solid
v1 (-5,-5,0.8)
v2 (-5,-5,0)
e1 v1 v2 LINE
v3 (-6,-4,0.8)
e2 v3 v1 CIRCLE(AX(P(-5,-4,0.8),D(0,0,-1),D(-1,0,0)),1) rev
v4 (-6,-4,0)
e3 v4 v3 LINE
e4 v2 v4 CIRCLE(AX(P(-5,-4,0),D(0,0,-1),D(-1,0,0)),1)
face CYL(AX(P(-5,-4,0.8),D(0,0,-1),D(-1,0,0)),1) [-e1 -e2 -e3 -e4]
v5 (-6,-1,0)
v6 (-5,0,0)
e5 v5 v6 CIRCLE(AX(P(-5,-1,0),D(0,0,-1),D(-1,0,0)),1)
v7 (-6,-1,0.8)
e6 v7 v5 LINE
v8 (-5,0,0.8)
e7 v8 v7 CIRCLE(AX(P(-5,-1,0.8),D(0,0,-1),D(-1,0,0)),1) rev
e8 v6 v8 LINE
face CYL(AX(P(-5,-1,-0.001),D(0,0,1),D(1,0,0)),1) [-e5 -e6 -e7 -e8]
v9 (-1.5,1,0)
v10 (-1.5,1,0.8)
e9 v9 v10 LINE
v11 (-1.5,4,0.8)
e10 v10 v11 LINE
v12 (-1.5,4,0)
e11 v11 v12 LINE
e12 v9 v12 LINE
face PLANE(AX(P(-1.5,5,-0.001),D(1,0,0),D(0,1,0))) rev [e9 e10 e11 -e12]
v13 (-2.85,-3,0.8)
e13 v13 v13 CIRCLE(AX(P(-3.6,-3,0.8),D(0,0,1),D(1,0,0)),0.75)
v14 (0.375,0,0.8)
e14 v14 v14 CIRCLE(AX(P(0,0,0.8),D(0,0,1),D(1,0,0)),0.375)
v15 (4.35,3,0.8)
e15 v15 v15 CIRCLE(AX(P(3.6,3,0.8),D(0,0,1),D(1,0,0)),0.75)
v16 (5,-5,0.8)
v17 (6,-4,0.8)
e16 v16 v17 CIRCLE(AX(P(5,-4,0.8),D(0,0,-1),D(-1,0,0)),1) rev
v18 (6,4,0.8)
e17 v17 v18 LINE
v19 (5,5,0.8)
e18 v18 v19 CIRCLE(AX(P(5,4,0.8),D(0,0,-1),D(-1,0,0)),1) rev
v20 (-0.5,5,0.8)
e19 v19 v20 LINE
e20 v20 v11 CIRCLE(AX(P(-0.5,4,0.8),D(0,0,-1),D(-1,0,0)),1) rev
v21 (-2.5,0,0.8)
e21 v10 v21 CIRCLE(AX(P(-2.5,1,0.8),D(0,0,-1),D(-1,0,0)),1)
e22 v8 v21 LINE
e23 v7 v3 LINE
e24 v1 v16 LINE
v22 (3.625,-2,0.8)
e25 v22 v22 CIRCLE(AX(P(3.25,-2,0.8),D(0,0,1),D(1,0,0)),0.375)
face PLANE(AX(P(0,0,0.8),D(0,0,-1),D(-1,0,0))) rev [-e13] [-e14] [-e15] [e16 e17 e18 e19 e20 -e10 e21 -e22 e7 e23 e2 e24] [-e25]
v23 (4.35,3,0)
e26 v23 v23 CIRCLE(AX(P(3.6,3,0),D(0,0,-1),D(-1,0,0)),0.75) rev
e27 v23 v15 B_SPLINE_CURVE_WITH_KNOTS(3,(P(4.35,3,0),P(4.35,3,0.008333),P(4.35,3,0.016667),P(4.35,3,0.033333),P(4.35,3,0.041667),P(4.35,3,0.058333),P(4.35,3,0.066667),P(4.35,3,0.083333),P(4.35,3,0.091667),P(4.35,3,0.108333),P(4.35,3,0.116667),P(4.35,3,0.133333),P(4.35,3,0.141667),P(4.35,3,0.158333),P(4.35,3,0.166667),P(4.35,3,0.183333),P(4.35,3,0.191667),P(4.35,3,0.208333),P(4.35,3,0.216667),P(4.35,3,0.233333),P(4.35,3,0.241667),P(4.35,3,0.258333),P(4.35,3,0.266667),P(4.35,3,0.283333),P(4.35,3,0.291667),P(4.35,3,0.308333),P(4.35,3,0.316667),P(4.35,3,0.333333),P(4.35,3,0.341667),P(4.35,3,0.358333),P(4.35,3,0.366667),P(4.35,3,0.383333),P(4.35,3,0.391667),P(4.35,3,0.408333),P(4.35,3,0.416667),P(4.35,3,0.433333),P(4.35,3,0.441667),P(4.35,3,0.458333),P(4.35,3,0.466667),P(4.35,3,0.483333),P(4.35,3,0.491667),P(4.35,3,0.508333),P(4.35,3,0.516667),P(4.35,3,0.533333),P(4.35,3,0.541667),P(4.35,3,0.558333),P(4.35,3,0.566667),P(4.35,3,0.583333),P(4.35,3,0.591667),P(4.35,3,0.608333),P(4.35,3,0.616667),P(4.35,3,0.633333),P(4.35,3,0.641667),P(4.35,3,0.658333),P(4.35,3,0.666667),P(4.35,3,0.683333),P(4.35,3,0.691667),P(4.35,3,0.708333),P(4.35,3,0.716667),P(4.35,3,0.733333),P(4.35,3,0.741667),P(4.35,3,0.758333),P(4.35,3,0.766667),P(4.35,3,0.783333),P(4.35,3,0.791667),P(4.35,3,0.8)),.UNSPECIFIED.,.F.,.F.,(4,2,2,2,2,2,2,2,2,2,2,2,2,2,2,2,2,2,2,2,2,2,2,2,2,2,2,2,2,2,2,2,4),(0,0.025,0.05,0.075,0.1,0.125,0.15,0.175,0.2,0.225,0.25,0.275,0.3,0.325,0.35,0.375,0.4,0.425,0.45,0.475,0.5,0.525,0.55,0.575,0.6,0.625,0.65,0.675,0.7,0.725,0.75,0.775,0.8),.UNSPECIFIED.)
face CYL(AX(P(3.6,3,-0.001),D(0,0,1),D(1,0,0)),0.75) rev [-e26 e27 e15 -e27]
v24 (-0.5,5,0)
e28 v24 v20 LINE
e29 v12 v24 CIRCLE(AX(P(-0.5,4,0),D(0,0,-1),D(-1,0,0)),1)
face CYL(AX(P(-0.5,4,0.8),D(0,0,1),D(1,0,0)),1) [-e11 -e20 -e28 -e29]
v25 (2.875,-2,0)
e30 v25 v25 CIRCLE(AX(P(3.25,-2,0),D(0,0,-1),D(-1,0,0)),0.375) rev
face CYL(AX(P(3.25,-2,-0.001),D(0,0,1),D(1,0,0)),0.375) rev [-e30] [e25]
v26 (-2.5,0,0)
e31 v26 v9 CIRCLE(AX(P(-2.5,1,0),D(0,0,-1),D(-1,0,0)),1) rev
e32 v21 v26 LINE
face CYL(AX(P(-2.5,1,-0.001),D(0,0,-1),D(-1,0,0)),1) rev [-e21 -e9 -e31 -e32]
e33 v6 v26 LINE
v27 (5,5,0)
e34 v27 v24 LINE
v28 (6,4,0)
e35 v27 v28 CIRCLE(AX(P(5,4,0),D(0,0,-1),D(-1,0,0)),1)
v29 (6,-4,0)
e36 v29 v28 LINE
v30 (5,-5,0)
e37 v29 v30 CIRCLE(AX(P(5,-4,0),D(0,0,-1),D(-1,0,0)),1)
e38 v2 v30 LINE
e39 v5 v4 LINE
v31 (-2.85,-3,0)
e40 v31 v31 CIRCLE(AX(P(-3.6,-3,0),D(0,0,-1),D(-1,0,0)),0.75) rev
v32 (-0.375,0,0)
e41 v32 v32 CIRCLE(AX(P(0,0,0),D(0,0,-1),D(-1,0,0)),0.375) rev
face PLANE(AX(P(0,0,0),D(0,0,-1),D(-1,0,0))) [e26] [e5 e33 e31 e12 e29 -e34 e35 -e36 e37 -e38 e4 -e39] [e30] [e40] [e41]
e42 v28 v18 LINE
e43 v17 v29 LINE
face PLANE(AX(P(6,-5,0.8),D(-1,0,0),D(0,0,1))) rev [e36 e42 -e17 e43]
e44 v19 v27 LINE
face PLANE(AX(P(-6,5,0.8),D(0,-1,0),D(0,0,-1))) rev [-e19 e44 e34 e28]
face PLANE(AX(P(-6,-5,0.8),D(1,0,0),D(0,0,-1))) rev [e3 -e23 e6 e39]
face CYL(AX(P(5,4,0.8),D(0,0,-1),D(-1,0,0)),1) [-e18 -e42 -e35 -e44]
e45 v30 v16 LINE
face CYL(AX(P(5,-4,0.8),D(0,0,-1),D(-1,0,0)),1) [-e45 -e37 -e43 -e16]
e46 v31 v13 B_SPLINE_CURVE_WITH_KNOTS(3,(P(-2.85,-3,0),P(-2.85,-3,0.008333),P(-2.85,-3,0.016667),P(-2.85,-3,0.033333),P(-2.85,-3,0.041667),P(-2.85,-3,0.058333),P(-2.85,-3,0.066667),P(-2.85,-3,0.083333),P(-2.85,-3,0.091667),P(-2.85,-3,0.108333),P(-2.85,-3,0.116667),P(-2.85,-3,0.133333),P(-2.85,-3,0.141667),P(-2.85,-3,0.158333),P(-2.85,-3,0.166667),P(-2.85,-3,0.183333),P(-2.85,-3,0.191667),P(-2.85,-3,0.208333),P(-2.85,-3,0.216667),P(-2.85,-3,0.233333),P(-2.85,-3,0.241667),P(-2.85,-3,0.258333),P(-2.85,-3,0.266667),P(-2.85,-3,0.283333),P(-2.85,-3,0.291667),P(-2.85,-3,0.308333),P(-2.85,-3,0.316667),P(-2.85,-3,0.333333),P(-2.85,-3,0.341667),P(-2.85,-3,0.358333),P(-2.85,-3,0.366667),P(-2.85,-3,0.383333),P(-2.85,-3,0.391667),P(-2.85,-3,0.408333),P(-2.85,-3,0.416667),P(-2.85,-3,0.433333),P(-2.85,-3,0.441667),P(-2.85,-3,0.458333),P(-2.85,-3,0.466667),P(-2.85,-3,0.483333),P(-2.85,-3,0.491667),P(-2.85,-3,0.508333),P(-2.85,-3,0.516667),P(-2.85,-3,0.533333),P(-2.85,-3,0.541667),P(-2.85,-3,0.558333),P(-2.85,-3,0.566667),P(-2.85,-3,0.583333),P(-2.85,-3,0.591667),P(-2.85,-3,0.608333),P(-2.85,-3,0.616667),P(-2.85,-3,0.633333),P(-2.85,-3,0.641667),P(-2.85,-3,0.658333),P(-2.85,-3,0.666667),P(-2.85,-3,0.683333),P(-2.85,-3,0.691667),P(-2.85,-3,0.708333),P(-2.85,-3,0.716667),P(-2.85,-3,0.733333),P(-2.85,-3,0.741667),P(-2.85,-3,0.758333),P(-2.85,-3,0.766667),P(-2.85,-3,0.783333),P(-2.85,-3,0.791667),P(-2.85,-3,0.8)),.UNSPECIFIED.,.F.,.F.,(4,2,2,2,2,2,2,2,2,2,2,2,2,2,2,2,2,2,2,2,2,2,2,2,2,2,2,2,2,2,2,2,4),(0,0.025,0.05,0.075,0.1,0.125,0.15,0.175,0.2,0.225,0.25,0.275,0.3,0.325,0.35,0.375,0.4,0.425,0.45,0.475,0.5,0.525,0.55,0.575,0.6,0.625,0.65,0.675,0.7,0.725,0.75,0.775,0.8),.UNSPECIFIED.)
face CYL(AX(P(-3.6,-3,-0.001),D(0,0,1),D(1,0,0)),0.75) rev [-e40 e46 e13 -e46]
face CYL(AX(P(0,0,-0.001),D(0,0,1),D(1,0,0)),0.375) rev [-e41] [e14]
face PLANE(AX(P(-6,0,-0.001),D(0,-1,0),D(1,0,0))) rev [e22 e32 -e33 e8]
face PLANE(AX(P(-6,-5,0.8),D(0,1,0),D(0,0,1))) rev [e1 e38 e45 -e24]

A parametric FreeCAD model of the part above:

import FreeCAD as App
import Part
import Sketcher

V = App.Vector


def edges_at(feature, points):
    """Names of the edges that pass closest to the given points."""
    edges = feature.Shape.Edges
    near = lambda p: min(range(len(edges)), key=lambda i: edges[i].distToShape(Part.Vertex(*p))[0])
    return sorted({f"Edge{near(p) + 1}" for p in points})


def add_polygon(sketch, points):
    """Adds a closed chain of lines whose ends are joined by coincident constraints."""
    first, n = sketch.GeometryCount, len(points)
    for a, b in zip(points, points[1:] + points[:1]):
        sketch.addGeometry(Part.LineSegment(App.Vector(*a, 0), App.Vector(*b, 0)), False)
    for i in range(n):
        sketch.addConstraint(Sketcher.Constraint("Coincident", first + i, 2, first + (i + 1) % n, 1))

doc = App.newDocument("Part")
params = doc.addObject("Spreadsheet::Sheet", "Params")
for row, (alias, value) in enumerate([
    ("sketch1_width", "12 mm"),
    ("sketch1_height", "10 mm"),
    ("pad1_length", "0.8 mm"),
    ("sketch2_diameter", "0.75 mm"),
    ("sketch3_diameter", "1.5 mm"),
    ("sketch4_diameter", "1.5 mm"),
    ("sketch5_diameter", "0.75 mm"),
    ("sketch6_height", "5 mm"),
    ("sketch6_width", "4.5 mm"),
    ("fillet_radius", "1 mm"),
], start=1):
    params.set(f"A{row}", alias)
    params.set(f"B{row}", "=" + value)
    params.setAlias(f"B{row}", alias)

body = doc.addObject("PartDesign::Body", "Body")

# Sketch on XY plane
sketch1 = body.newObject("Sketcher::SketchObject", "Sketch")
sketch1.AttachmentSupport = (doc.getObject("XY_Plane"), [""])
sketch1.MapMode = "FlatFace"
add_polygon(sketch1, [(-6, 5), (-6, -5), (6, -5), (6, 5)])  # lines 0-3
sketch1.addConstraint([
    Sketcher.Constraint("Vertical", 0),
    Sketcher.Constraint("Horizontal", 1),
    Sketcher.Constraint("Vertical", 2),
    Sketcher.Constraint("Horizontal", 3),
    Sketcher.Constraint("Symmetric", 0, 2, 2, 2, -1, 1),
    Sketcher.Constraint("DistanceX", 1, 1, 1, 2, 12.0),
    Sketcher.Constraint("DistanceY", 0, 2, 0, 1, 10.0),
])
sketch1.setExpression("Constraints[9]", "Params.sketch1_width")
sketch1.setExpression("Constraints[10]", "Params.sketch1_height")
pad1 = body.newObject("PartDesign::Pad", "Pad")
pad1.Profile = sketch1
pad1.setExpression("Length", "Params.pad1_length")

# Sketch on XY plane
sketch2 = body.newObject("Sketcher::SketchObject", "Sketch001")
sketch2.AttachmentSupport = (doc.getObject("XY_Plane"), [""])
sketch2.MapMode = "FlatFace"
sketch2.AttachmentOffset = App.Placement(V(0, 0, 0.8), App.Rotation())
sketch2.addGeometry(Part.Circle(V(0, 0, 0), V(0, 0, 1), 0.38), False)
sketch2.addConstraint([
    Sketcher.Constraint("Coincident", 0, 3, -1, 1),
    Sketcher.Constraint("Diameter", 0, 0.75),
])
sketch2.setExpression("Constraints[1]", "Params.sketch2_diameter")
pocket1 = body.newObject("PartDesign::Pocket", "Pocket")
pocket1.Profile = sketch2
pocket1.Type = "UpToFirst"

# Sketch on XY plane
sketch3 = body.newObject("Sketcher::SketchObject", "Sketch002")
sketch3.AttachmentSupport = (doc.getObject("XY_Plane"), [""])
sketch3.MapMode = "FlatFace"
sketch3.AttachmentOffset = App.Placement(V(0, 0, 0.8), App.Rotation())
sketch3.addGeometry(Part.Circle(V(-3.6, -3, 0), V(0, 0, 1), 0.8), False)
sketch3.addConstraint([
    Sketcher.Constraint("Diameter", 0, 1.5),
    Sketcher.Constraint("DistanceY", 0, 3, -1, 1, 3.0),
    Sketcher.Constraint("DistanceX", 0, 3, -1, 1, 3.6),
])
sketch3.setExpression("Constraints[0]", "Params.sketch3_diameter")
pocket2 = body.newObject("PartDesign::Pocket", "Pocket001")
pocket2.Profile = sketch3
pocket2.Type = "UpToFirst"

# Sketch on XY plane
sketch4 = body.newObject("Sketcher::SketchObject", "Sketch003")
sketch4.AttachmentSupport = (doc.getObject("XY_Plane"), [""])
sketch4.MapMode = "FlatFace"
sketch4.AttachmentOffset = App.Placement(V(0, 0, 0.8), App.Rotation())
sketch4.addGeometry(Part.Circle(V(3.6, 3, 0), V(0, 0, 1), 0.8), False)
sketch4.addConstraint([
    Sketcher.Constraint("Diameter", 0, 1.5),
    Sketcher.Constraint("DistanceY", -1, 1, 0, 3, 3.0),
    Sketcher.Constraint("DistanceX", -1, 1, 0, 3, 3.6),
])
sketch4.setExpression("Constraints[0]", "Params.sketch4_diameter")
pocket3 = body.newObject("PartDesign::Pocket", "Pocket002")
pocket3.Profile = sketch4
pocket3.Type = "UpToFirst"

# Sketch on XY plane
sketch5 = body.newObject("Sketcher::SketchObject", "Sketch004")
sketch5.AttachmentSupport = (doc.getObject("XY_Plane"), [""])
sketch5.MapMode = "FlatFace"
sketch5.AttachmentOffset = App.Placement(V(0, 0, 0.8), App.Rotation())
sketch5.addGeometry(Part.Circle(V(3.25, -2, 0), V(0, 0, 1), 0.38), False)
sketch5.addConstraint([
    Sketcher.Constraint("Diameter", 0, 0.75),
    Sketcher.Constraint("DistanceY", 0, 3, -1, 1, 2.0),
    Sketcher.Constraint("DistanceX", -1, 1, 0, 3, 3.25),
])
sketch5.setExpression("Constraints[0]", "Params.sketch5_diameter")
pocket4 = body.newObject("PartDesign::Pocket", "Pocket003")
pocket4.Profile = sketch5
pocket4.Type = "UpToFirst"

# Sketch on XY plane
sketch6 = body.newObject("Sketcher::SketchObject", "Sketch005")
sketch6.AttachmentSupport = (doc.getObject("XY_Plane"), [""])
sketch6.MapMode = "FlatFace"
sketch6.AttachmentOffset = App.Placement(V(0, 0, 0.8), App.Rotation())
add_polygon(sketch6, [(-6, 5), (-6, 0), (-1.5, 0), (-1.5, 5)])  # lines 0-3
sketch6.addConstraint([
    Sketcher.Constraint("Vertical", 0),
    Sketcher.Constraint("Horizontal", 1),
    Sketcher.Constraint("Vertical", 2),
    Sketcher.Constraint("Horizontal", 3),
    Sketcher.Constraint("PointOnObject", 0, 2, -1),
    Sketcher.Constraint("DistanceY", 0, 2, 0, 1, 5.0),
    Sketcher.Constraint("DistanceX", 1, 1, 1, 2, 4.5),
    Sketcher.Constraint("DistanceX", 0, 2, -1, 1, 6.0),
])
sketch6.setExpression("Constraints[9]", "Params.sketch6_height")
sketch6.setExpression("Constraints[10]", "Params.sketch6_width")
pocket5 = body.newObject("PartDesign::Pocket", "Pocket004")
pocket5.Profile = sketch6
pocket5.Type = "UpToFirst"
doc.recompute()

fillet = body.newObject("PartDesign::Fillet", "Fillet")
fillet.Base = (pocket5, edges_at(pocket5, [
    (-6, 0, 0.4),
    (-1.5, 5, 0.4),
    (-1.5, 0, 0.4),
    (6, -5, 0.4),
    (-6, -5, 0.4),
    (6, 5, 0.4),
]))
fillet.setExpression("Radius", "Params.fillet_radius")

doc.recompute()
